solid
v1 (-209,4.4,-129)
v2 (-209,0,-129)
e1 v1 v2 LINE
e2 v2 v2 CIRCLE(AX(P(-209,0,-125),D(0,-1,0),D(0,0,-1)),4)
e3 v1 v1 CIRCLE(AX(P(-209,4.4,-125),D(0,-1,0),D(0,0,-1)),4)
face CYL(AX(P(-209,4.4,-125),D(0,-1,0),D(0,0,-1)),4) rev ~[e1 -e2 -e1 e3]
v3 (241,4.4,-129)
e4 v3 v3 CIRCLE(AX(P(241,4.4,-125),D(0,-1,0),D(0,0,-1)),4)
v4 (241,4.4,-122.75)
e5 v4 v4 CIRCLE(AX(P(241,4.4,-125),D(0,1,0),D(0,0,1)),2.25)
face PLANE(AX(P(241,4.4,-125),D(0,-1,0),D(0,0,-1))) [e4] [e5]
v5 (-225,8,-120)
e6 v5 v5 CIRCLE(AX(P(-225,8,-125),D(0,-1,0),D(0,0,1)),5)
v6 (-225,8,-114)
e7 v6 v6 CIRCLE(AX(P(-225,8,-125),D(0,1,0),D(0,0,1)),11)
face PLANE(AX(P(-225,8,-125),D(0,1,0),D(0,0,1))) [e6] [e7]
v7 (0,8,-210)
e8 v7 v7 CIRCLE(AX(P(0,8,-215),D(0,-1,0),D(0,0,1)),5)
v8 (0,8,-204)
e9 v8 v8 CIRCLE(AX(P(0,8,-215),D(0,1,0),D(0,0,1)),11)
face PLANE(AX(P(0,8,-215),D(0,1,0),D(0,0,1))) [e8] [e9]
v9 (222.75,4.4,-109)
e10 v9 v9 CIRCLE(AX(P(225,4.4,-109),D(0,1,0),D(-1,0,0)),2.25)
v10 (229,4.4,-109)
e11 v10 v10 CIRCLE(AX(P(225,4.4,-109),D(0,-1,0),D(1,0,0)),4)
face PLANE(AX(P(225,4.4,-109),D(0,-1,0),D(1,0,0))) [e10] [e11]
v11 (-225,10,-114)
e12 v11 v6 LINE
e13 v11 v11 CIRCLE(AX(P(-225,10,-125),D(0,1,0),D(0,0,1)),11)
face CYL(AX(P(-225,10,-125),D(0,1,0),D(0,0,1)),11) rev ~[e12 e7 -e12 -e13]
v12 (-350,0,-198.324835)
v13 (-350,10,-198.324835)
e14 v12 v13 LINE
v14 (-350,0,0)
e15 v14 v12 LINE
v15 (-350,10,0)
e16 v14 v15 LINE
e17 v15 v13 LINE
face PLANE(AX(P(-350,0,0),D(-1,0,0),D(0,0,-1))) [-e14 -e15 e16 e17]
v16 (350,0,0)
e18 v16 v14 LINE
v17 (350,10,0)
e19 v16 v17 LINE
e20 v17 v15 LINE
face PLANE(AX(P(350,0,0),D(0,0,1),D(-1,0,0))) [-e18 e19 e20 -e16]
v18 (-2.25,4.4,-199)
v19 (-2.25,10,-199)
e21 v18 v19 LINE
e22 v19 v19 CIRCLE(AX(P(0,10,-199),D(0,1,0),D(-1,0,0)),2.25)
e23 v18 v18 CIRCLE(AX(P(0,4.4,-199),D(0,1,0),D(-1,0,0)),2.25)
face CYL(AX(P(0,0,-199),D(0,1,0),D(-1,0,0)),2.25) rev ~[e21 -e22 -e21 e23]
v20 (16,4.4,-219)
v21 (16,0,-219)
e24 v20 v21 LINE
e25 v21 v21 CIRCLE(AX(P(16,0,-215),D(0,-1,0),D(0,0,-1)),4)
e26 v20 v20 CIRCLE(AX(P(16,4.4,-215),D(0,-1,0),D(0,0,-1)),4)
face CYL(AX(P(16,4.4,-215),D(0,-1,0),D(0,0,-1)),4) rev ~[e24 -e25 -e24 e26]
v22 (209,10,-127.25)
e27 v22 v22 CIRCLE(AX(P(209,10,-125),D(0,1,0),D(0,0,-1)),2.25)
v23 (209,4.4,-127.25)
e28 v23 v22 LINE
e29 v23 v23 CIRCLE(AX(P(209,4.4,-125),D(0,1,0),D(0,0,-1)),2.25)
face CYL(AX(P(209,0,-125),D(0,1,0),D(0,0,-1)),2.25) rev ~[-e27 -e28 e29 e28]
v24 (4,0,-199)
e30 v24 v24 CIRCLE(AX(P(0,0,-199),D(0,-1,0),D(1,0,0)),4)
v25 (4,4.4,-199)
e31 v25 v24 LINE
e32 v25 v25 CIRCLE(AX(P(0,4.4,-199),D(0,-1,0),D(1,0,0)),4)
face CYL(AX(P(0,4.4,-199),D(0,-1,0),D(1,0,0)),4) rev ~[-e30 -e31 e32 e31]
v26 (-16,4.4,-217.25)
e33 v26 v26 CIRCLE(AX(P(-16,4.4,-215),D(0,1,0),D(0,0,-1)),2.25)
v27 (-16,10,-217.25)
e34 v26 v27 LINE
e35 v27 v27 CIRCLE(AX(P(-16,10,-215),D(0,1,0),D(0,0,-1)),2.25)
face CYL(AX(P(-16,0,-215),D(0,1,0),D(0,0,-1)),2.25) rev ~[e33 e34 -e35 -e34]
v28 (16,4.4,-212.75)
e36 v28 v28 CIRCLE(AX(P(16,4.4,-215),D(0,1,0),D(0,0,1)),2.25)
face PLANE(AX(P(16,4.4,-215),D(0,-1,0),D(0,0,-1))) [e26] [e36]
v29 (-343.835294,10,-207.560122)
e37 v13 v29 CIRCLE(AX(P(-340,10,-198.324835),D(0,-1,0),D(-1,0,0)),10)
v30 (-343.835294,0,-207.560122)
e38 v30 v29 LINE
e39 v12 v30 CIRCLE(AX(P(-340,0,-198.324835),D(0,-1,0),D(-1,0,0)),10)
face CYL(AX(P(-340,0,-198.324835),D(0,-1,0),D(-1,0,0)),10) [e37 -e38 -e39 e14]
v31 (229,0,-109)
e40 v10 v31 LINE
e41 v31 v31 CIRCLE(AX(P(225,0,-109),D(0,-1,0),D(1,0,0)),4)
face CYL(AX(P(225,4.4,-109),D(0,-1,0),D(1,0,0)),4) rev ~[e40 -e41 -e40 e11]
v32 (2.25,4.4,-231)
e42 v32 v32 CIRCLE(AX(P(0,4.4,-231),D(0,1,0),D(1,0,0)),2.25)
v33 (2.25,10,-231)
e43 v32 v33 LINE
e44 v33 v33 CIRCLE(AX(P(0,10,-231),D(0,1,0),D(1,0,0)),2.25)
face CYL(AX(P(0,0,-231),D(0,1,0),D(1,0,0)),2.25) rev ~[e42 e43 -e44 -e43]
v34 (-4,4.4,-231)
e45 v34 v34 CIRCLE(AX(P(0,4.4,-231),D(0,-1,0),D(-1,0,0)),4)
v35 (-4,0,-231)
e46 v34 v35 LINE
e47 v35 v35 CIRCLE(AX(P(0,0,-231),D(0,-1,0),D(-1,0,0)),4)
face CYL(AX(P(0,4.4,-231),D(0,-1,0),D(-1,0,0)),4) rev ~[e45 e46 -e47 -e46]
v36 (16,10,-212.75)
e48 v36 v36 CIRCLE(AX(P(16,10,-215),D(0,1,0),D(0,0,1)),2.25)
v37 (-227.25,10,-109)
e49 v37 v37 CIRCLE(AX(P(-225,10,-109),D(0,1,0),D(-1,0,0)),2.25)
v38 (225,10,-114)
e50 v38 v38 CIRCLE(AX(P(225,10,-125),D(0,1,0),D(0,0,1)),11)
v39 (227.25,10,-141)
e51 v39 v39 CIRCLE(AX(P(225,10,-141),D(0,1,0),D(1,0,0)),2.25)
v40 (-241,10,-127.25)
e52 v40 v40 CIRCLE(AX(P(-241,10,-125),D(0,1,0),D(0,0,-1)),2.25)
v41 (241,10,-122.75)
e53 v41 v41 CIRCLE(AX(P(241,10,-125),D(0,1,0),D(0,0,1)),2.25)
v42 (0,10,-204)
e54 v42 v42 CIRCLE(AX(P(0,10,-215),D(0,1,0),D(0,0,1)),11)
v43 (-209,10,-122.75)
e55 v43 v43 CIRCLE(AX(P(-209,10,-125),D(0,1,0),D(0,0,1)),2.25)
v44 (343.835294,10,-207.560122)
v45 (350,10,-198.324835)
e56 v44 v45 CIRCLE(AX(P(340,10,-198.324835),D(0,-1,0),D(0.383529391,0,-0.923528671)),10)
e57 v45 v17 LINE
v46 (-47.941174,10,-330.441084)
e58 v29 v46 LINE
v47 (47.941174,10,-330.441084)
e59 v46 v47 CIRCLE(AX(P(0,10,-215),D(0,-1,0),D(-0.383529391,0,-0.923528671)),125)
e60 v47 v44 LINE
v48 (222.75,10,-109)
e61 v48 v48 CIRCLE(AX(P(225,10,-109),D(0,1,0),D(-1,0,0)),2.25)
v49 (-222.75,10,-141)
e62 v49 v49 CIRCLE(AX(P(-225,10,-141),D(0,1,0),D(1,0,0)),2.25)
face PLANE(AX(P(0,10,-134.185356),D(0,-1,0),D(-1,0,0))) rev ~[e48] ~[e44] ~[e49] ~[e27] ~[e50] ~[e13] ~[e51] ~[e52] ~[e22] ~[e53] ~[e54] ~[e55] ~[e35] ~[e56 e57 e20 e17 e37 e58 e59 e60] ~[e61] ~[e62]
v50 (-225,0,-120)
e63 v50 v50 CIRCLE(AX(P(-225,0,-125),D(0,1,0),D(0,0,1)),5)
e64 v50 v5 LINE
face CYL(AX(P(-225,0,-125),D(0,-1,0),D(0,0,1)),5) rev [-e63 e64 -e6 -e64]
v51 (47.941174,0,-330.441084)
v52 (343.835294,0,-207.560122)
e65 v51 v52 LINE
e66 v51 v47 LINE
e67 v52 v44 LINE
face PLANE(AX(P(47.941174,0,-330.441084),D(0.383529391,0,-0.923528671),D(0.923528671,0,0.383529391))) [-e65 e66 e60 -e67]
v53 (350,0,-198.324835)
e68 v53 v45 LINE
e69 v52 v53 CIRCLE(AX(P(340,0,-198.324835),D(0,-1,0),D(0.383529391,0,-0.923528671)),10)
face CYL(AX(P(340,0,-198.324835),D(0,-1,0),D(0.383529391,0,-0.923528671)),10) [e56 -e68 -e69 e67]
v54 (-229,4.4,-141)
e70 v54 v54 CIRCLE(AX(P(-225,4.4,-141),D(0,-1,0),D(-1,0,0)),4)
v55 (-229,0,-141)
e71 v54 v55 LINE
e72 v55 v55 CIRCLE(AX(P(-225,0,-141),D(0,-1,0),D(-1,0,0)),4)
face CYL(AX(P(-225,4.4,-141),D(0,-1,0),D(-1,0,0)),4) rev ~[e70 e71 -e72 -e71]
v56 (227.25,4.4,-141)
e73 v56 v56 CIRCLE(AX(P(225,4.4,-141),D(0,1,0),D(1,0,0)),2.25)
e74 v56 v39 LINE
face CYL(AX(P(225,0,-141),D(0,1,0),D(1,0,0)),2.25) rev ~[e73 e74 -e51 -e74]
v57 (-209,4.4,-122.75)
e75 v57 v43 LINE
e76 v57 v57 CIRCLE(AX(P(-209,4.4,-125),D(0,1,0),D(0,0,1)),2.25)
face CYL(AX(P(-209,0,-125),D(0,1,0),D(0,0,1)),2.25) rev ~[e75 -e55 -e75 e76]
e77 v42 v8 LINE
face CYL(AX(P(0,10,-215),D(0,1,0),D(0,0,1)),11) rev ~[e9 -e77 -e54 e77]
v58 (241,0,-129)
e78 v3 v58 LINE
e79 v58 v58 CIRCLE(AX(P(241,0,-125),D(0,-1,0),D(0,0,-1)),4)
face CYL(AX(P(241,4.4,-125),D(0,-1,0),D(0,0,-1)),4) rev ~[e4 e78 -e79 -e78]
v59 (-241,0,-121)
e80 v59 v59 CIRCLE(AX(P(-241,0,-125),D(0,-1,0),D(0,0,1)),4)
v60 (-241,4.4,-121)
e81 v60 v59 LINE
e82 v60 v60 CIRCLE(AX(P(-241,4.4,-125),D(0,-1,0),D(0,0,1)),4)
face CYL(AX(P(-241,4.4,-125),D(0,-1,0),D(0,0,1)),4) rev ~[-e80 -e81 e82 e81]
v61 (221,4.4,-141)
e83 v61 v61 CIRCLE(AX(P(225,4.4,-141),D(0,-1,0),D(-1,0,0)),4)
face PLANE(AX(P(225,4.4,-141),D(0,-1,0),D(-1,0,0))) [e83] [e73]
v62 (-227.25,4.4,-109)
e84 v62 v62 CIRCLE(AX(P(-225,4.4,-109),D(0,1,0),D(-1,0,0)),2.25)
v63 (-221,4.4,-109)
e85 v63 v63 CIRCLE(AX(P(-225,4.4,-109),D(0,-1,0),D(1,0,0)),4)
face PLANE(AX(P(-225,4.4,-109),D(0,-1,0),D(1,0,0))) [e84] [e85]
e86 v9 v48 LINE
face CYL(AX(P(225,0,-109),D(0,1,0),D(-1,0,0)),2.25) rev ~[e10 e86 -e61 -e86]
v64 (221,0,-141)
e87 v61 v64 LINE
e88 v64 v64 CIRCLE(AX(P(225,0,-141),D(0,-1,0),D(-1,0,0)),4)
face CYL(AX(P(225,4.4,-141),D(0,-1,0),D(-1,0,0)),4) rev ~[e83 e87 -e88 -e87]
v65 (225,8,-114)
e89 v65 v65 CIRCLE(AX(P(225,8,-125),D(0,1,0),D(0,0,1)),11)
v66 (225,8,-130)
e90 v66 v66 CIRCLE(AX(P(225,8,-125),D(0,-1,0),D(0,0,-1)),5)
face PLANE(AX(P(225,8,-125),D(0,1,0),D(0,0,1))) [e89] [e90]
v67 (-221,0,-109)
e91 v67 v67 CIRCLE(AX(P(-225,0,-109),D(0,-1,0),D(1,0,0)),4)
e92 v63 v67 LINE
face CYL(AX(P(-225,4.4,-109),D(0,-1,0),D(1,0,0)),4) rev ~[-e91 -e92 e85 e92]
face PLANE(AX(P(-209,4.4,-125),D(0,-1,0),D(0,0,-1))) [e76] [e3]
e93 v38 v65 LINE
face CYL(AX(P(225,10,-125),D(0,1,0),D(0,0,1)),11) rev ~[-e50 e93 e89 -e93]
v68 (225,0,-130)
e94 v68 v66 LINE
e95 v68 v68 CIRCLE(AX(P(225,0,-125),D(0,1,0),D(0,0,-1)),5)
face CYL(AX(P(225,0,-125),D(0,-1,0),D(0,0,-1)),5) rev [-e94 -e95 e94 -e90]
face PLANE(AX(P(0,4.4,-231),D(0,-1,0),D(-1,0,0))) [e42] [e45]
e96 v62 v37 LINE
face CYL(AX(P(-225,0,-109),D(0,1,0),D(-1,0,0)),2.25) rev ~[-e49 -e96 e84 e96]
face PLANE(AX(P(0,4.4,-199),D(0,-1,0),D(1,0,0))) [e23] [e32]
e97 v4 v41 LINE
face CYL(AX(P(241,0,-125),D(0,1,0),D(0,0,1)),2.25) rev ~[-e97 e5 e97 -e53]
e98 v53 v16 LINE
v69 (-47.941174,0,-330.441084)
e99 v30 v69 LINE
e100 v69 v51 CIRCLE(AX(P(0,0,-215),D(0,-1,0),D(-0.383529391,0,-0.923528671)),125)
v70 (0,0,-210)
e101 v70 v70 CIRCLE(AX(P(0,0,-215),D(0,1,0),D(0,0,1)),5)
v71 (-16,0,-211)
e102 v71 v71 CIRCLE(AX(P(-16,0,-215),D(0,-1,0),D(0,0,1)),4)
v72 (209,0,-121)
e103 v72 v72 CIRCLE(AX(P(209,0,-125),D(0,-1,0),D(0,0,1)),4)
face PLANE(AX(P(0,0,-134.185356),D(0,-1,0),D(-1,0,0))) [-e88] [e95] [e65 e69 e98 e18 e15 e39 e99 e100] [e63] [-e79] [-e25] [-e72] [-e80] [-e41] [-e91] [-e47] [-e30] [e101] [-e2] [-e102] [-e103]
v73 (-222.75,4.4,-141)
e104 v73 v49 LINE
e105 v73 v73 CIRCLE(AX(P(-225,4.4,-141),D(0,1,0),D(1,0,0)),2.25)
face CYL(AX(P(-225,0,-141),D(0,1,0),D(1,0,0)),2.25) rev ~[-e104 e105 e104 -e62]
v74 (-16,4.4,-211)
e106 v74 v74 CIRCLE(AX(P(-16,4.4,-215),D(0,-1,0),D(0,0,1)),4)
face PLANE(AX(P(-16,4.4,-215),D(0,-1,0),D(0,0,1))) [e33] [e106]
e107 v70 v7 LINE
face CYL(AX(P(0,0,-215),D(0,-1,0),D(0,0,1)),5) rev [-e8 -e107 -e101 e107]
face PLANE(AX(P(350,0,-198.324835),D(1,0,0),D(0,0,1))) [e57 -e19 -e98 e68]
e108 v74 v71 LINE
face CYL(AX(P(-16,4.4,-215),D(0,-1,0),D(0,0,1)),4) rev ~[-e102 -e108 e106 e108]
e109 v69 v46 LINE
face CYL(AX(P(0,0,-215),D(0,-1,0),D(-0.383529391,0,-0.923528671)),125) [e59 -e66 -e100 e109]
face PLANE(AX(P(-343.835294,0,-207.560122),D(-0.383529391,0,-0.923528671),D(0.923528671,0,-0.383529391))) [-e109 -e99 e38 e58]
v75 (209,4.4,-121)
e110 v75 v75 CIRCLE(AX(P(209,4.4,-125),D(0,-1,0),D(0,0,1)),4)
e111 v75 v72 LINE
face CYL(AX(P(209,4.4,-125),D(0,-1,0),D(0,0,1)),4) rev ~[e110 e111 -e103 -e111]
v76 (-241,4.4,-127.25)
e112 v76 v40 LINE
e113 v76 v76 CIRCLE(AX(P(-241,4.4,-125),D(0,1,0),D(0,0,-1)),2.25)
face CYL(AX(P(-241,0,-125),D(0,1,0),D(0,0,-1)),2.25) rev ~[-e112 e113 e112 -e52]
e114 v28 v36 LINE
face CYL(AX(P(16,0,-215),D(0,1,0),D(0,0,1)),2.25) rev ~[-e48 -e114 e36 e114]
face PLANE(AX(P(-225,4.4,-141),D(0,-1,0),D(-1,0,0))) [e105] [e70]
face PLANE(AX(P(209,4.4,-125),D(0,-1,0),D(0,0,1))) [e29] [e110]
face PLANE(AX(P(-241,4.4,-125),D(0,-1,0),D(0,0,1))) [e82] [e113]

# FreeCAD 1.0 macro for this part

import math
import FreeCAD as App
import Part
import Sketcher
from FreeCAD import Vector
Q = App.Units.Quantity

doc = App.newDocument("Part")
body = doc.addObject("PartDesign::Body", "Body")

# Sketch on XZ plane
sketch1 = body.newObject("Sketcher::SketchObject", "Sketch")
sketch1.AttachmentSupport = (doc.getObject("XZ_Plane"), [""])
sketch1.MapMode = "FlatFace"
sketch1.addGeometry(Part.LineSegment(Vector(-350, 0, 0), Vector(350, 0, 0)), False)
sketch1.addGeometry(Part.LineSegment(Vector(350, 0, 0), Vector(350, -198, 0)), False)
sketch1.addGeometry(Part.ArcOfCircle(Part.Circle(Vector(340, -198, 0), Vector(0, 0, 1), 10), math.radians(-67), math.radians(0)), False)
sketch1.addGeometry(Part.LineSegment(Vector(344, -208, 0), Vector(48, -330, 0)), False)
sketch1.addGeometry(Part.ArcOfCircle(Part.Circle(Vector(0, -215, 0), Vector(0, 0, 1), 125), math.radians(-113), math.radians(-67)), False)
sketch1.addGeometry(Part.LineSegment(Vector(-48, -330, 0), Vector(-344, -208, 0)), False)
sketch1.addGeometry(Part.ArcOfCircle(Part.Circle(Vector(-340, -198, 0), Vector(0, 0, 1), 10), math.radians(-180), math.radians(-113)), False)
sketch1.addGeometry(Part.LineSegment(Vector(-350, -198, 0), Vector(-350, 0, 0)), False)
sketch1.addGeometry(Part.Circle(Vector(225, -125, 0), Vector(0, 0, 1), 5), False)
sketch1.addGeometry(Part.Circle(Vector(-225, -125, 0), Vector(0, 0, 1), 5), False)
sketch1.addGeometry(Part.Circle(Vector(0, -215, 0), Vector(0, 0, 1), 5), False)
sketch1.addConstraint(Sketcher.Constraint("Coincident", 0, 2, 1, 1))
sketch1.addConstraint(Sketcher.Constraint("Tangent", 1, 2, 2, 2))
sketch1.addConstraint(Sketcher.Constraint("Tangent", 2, 1, 3, 1))
sketch1.addConstraint(Sketcher.Constraint("Tangent", 3, 2, 4, 2))
sketch1.addConstraint(Sketcher.Constraint("Tangent", 4, 1, 5, 1))
sketch1.addConstraint(Sketcher.Constraint("Tangent", 5, 2, 6, 2))
sketch1.addConstraint(Sketcher.Constraint("Tangent", 6, 1, 7, 1))
sketch1.addConstraint(Sketcher.Constraint("Coincident", 7, 2, 0, 1))
sketch1.addConstraint(Sketcher.Constraint("Horizontal", 0))
sketch1.addConstraint(Sketcher.Constraint("Vertical", 1))
sketch1.addConstraint(Sketcher.Constraint("Vertical", 7))
sketch1.addConstraint(Sketcher.Constraint("Coincident", 10, 3, 4, 3))
sketch1.addConstraint(Sketcher.Constraint("Equal", 2, 6))
sketch1.addConstraint(Sketcher.Constraint("Equal", 8, 9))
sketch1.addConstraint(Sketcher.Constraint("Equal", 9, 10))
sketch1.addConstraint(Sketcher.Constraint("Symmetric", 0, 2, 7, 2, -1, 1))
sketch1.addConstraint(Sketcher.Constraint("Symmetric", 8, 3, 9, 3, -2))
sketch1.addConstraint(Sketcher.Constraint("Symmetric", 3, 2, 4, 1, -2))
sketch1.addConstraint(Sketcher.Constraint("Diameter", 8, Q("10 mm")))
sketch1.addConstraint(Sketcher.Constraint("Radius", 2, Q("10 mm")))
sketch1.addConstraint(Sketcher.Constraint("Radius", 4, Q("125 mm")))
sketch1.addConstraint(Sketcher.Constraint("DistanceX", 0, 1, 0, 2, Q("700 mm")))
sketch1.addConstraint(Sketcher.Constraint("DistanceY", 4, 3, -1, 1, Q("215 mm")))
sketch1.addConstraint(Sketcher.Constraint("DistanceX", -1, 1, 8, 3, Q("225 mm")))
sketch1.addConstraint(Sketcher.Constraint("DistanceY", 8, 3, -1, 1, Q("125 mm")))
sketch1.addConstraint(Sketcher.Constraint("DistanceY", 1, 2, 1, 1, Q("198.324835 mm")))
pad1 = body.newObject("PartDesign::Pad", "Pad")
pad1.Profile = sketch1
pad1.Length = 10
pad1.Reversed = True

# Sketch on XZ plane
sketch2 = body.newObject("Sketcher::SketchObject", "Sketch001")
sketch2.AttachmentSupport = (doc.getObject("XZ_Plane"), [""])
sketch2.MapMode = "FlatFace"
sketch2.AttachmentOffset = App.Placement(Vector(0, 0, -10), App.Rotation())
sketch2.addGeometry(Part.Circle(Vector(0, -215, 0), Vector(0, 0, 1), 11), False)
sketch2.addGeometry(Part.Circle(Vector(225, -125, 0), Vector(0, 0, 1), 11), False)
sketch2.addGeometry(Part.Circle(Vector(-225, -125, 0), Vector(0, 0, 1), 11), False)
sketch2.addConstraint(Sketcher.Constraint("Equal", 0, 1))
sketch2.addConstraint(Sketcher.Constraint("Equal", 1, 2))
sketch2.addConstraint(Sketcher.Constraint("Symmetric", 1, 3, 2, 3, -2))
sketch2.addConstraint(Sketcher.Constraint("PointOnObject", 0, 3, -2))
sketch2.addConstraint(Sketcher.Constraint("Diameter", 0, Q("22 mm")))
sketch2.addConstraint(Sketcher.Constraint("DistanceY", 0, 3, -1, 1, Q("215 mm")))
sketch2.addConstraint(Sketcher.Constraint("DistanceX", -1, 1, 1, 3, Q("225 mm")))
sketch2.addConstraint(Sketcher.Constraint("DistanceY", 1, 3, -1, 1, Q("125 mm")))
pocket1 = body.newObject("PartDesign::Pocket", "Pocket")
pocket1.Profile = sketch2
pocket1.Length = 2
pocket1.Reversed = True

# Sketch on XZ plane
sketch3 = body.newObject("Sketcher::SketchObject", "Sketch002")
sketch3.AttachmentSupport = (doc.getObject("XZ_Plane"), [""])
sketch3.MapMode = "FlatFace"
sketch3.addGeometry(Part.Circle(Vector(225, -141, 0), Vector(0, 0, 1), 2.2), False)
sketch3.addConstraint(Sketcher.Constraint("Diameter", 0, Q("4.5 mm")))
sketch3.addConstraint(Sketcher.Constraint("DistanceX", -1, 1, 0, 3, Q("225 mm")))
sketch3.addConstraint(Sketcher.Constraint("DistanceY", 0, 3, -1, 1, Q("141 mm")))
doc.recompute()
hole = body.newObject("PartDesign::Hole", "Hole")
hole.Profile = sketch3
hole.ThreadType = "None"
hole.Diameter = 4.5
hole.DepthType = "ThroughAll"
hole.HoleCutType = "Counterbore"
hole.HoleCutDiameter = 8
hole.HoleCutDepth = 4.4
doc.recompute()

datumline = body.newObject("PartDesign::Line", "DatumLine")
datumline.Placement = App.Placement(Vector(225, 0, -125), App.Rotation(Vector(0, 0, 1), Vector(0, 1, 0)))
polarpattern = body.newObject("PartDesign::PolarPattern", "PolarPattern")
polarpattern.Originals = [hole]
polarpattern.Axis = (datumline, [""])
polarpattern.Angle = 360
polarpattern.Occurrences = 4
body.Tip = polarpattern

# Sketch on XZ plane
sketch4 = body.newObject("Sketcher::SketchObject", "Sketch003")
sketch4.AttachmentSupport = (doc.getObject("XZ_Plane"), [""])
sketch4.MapMode = "FlatFace"
sketch4.addGeometry(Part.Circle(Vector(0, -231, 0), Vector(0, 0, 1), 2.2), False)
sketch4.addConstraint(Sketcher.Constraint("PointOnObject", 0, 3, -2))
sketch4.addConstraint(Sketcher.Constraint("Diameter", 0, Q("4.5 mm")))
sketch4.addConstraint(Sketcher.Constraint("DistanceY", 0, 3, -1, 1, Q("231 mm")))
doc.recompute()
hole2 = body.newObject("PartDesign::Hole", "Hole001")
hole2.Profile = sketch4
hole2.ThreadType = "None"
hole2.Diameter = 4.5
hole2.DepthType = "ThroughAll"
hole2.HoleCutType = "Counterbore"
hole2.HoleCutDiameter = 8
hole2.HoleCutDepth = 4.4

# Sketch on XZ plane
sketch5 = body.newObject("Sketcher::SketchObject", "Sketch004")
sketch5.AttachmentSupport = (doc.getObject("XZ_Plane"), [""])
sketch5.MapMode = "FlatFace"
sketch5.addGeometry(Part.Circle(Vector(-225, -141, 0), Vector(0, 0, 1), 2.2), False)
sketch5.addConstraint(Sketcher.Constraint("Diameter", 0, Q("4.5 mm")))
sketch5.addConstraint(Sketcher.Constraint("DistanceX", 0, 3, -1, 1, Q("225 mm")))
sketch5.addConstraint(Sketcher.Constraint("DistanceY", 0, 3, -1, 1, Q("141 mm")))
doc.recompute()
hole3 = body.newObject("PartDesign::Hole", "Hole002")
hole3.Profile = sketch5
hole3.ThreadType = "None"
hole3.Diameter = 4.5
hole3.DepthType = "ThroughAll"
hole3.HoleCutType = "Counterbore"
hole3.HoleCutDiameter = 8
hole3.HoleCutDepth = 4.4
doc.recompute()

datumline2 = body.newObject("PartDesign::Line", "DatumLine001")
datumline2.Placement = App.Placement(Vector(0, 0, -215), App.Rotation(Vector(0, 0, 1), Vector(0, 1, 0)))
polarpattern2 = body.newObject("PartDesign::PolarPattern", "PolarPattern001")
polarpattern2.Originals = [hole2]
polarpattern2.Axis = (datumline2, [""])
polarpattern2.Angle = 360
polarpattern2.Occurrences = 4
body.Tip = polarpattern2
doc.recompute()

datumline3 = body.newObject("PartDesign::Line", "DatumLine002")
datumline3.Placement = App.Placement(Vector(-225, 0, -125), App.Rotation(Vector(0, 0, 1), Vector(0, 1, 0)))
polarpattern3 = body.newObject("PartDesign::PolarPattern", "PolarPattern002")
polarpattern3.Originals = [hole3]
polarpattern3.Axis = (datumline3, [""])
polarpattern3.Angle = 360
polarpattern3.Occurrences = 4
body.Tip = polarpattern3

doc.recompute()
